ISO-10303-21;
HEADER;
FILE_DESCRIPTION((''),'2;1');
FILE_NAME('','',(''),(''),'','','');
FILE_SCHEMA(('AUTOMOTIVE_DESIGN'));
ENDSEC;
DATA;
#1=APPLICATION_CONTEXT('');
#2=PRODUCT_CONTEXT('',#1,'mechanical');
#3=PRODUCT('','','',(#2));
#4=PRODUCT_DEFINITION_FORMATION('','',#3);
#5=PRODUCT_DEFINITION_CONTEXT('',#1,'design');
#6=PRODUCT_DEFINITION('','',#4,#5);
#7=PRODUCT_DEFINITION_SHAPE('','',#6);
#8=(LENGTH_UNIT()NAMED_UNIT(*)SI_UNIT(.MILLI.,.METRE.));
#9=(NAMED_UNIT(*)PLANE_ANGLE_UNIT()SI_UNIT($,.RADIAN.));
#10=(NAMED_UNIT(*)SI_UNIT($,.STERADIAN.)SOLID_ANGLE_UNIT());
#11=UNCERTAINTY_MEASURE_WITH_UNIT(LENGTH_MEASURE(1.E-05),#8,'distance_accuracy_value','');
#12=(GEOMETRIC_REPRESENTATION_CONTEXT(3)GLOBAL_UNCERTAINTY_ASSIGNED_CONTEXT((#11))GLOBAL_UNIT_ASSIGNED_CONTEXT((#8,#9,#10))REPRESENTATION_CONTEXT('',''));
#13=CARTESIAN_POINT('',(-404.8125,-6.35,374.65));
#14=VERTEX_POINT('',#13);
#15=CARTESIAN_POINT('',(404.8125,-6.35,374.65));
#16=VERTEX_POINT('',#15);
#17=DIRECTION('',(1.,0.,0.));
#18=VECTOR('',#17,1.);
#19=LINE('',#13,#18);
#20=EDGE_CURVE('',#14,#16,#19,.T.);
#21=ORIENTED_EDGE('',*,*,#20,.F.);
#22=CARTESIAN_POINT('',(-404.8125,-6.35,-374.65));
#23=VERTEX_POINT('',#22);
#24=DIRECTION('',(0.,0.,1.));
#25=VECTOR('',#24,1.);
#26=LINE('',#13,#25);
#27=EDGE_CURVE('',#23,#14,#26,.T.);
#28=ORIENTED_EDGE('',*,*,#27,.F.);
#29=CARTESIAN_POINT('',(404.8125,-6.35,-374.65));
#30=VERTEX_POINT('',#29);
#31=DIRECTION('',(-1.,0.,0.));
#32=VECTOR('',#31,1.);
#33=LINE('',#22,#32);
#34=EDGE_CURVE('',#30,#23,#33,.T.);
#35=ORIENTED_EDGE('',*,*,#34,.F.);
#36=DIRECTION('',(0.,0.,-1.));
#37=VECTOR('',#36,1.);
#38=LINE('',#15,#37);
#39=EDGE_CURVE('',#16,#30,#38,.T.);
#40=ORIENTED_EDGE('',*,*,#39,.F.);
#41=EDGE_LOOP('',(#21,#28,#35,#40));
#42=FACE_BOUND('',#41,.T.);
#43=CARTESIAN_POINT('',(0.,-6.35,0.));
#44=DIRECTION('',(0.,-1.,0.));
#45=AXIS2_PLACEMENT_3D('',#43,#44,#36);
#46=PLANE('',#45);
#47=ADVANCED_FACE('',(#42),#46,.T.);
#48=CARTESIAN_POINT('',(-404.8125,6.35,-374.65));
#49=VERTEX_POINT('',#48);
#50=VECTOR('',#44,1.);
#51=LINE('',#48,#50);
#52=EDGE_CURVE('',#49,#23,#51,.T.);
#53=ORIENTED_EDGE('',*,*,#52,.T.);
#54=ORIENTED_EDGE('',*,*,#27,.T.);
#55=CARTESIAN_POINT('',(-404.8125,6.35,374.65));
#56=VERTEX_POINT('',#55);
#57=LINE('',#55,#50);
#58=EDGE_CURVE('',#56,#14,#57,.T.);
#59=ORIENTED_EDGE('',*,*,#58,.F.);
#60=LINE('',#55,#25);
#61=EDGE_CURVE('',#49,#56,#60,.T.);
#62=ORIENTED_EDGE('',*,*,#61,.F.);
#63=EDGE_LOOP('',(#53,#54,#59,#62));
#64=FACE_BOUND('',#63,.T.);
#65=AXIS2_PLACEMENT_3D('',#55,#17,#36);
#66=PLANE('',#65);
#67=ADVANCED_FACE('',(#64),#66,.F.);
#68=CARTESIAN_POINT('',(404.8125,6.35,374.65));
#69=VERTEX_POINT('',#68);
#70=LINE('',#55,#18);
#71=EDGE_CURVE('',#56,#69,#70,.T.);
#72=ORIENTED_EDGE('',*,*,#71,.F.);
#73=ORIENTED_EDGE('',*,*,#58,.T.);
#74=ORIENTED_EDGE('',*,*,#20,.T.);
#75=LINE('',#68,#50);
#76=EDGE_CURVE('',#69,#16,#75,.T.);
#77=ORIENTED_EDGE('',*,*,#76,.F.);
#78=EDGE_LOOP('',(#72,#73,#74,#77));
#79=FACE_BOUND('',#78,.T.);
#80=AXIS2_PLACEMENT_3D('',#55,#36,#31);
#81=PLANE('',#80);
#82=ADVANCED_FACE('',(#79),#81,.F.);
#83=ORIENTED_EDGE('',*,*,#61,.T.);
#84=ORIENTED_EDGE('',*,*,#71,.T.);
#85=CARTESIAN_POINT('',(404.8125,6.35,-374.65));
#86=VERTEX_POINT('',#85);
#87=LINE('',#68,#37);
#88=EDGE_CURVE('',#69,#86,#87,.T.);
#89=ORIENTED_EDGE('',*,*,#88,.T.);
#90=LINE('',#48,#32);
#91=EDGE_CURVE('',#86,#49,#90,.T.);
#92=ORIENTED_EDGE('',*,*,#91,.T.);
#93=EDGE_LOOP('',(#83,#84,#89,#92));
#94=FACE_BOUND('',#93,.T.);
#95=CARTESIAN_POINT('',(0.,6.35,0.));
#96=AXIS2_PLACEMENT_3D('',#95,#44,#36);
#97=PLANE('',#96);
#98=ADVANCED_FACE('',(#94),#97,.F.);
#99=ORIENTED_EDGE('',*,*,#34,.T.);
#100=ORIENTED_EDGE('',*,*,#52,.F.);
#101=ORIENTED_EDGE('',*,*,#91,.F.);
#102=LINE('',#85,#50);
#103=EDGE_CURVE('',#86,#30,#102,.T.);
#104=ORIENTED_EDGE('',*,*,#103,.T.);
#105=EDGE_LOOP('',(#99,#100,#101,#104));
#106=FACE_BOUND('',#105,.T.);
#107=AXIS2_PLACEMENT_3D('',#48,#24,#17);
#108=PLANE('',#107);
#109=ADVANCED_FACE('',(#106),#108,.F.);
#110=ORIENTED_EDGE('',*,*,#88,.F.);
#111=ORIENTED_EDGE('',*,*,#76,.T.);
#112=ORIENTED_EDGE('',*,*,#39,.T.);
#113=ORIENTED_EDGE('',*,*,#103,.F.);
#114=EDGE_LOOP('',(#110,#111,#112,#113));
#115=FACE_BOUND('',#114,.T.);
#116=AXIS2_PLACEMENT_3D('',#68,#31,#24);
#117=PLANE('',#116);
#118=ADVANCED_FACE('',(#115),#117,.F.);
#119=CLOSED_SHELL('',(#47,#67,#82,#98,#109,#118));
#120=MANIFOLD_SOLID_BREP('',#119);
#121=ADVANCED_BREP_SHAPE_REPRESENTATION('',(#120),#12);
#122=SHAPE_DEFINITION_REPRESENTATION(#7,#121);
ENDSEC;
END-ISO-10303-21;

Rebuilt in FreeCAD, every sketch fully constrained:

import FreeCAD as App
import Part
import Sketcher
Q = App.Units.Quantity

doc = App.newDocument("Part")
params = doc.addObject("Spreadsheet::Sheet", "Params")
for row, (alias, value) in enumerate([
    ("sketch1_height", "29.5 in"),
    ("sketch1_width", "31.875 in"),
    ("pad1_length", "0.5 in"),
], start=1):
    params.set(f"A{row}", alias)
    params.set(f"B{row}", "=" + value)
    params.setAlias(f"B{row}", alias)

body = doc.addObject("PartDesign::Body", "Body")

# Sketch on XZ plane
sketch1 = doc.addObject("Sketcher::SketchObject", "Sketch")
body.addObject(sketch1)
sketch1.AttachmentSupport = (doc.XZ_Plane, [""])
sketch1.MapMode = "FlatFace"
sketch1.addGeometry(Part.LineSegment(App.Vector(-405, -375, 0), App.Vector(-405, 375, 0)), False)
sketch1.addGeometry(Part.LineSegment(App.Vector(-405, 375, 0), App.Vector(405, 375, 0)), False)
sketch1.addGeometry(Part.LineSegment(App.Vector(405, 375, 0), App.Vector(405, -375, 0)), False)
sketch1.addGeometry(Part.LineSegment(App.Vector(405, -375, 0), App.Vector(-405, -375, 0)), False)
sketch1.addConstraint(Sketcher.Constraint("Coincident", 0, 2, 1, 1))
sketch1.addConstraint(Sketcher.Constraint("Coincident", 1, 2, 2, 1))
sketch1.addConstraint(Sketcher.Constraint("Coincident", 2, 2, 3, 1))
sketch1.addConstraint(Sketcher.Constraint("Coincident", 3, 2, 0, 1))
sketch1.addConstraint(Sketcher.Constraint("Vertical", 0))
sketch1.addConstraint(Sketcher.Constraint("Horizontal", 1))
sketch1.addConstraint(Sketcher.Constraint("Vertical", 2))
sketch1.addConstraint(Sketcher.Constraint("Horizontal", 3))
sketch1.addConstraint(Sketcher.Constraint("Symmetric", 0, 2, 2, 2, -1, 1))
sketch1.addConstraint(Sketcher.Constraint("DistanceY", 0, 1, 0, 2, Q("29.5 in")))
sketch1.addConstraint(Sketcher.Constraint("DistanceX", 1, 1, 1, 2, Q("31.875 in")))
sketch1.setExpression("Constraints[9]", "Params.sketch1_height")
sketch1.setExpression("Constraints[10]", "Params.sketch1_width")
pad1 = doc.addObject("PartDesign::Pad", "Pad")
body.addObject(pad1)
pad1.Profile = sketch1
pad1.setExpression("Length", "Params.pad1_length")
pad1.Midplane = True

doc.recompute()
